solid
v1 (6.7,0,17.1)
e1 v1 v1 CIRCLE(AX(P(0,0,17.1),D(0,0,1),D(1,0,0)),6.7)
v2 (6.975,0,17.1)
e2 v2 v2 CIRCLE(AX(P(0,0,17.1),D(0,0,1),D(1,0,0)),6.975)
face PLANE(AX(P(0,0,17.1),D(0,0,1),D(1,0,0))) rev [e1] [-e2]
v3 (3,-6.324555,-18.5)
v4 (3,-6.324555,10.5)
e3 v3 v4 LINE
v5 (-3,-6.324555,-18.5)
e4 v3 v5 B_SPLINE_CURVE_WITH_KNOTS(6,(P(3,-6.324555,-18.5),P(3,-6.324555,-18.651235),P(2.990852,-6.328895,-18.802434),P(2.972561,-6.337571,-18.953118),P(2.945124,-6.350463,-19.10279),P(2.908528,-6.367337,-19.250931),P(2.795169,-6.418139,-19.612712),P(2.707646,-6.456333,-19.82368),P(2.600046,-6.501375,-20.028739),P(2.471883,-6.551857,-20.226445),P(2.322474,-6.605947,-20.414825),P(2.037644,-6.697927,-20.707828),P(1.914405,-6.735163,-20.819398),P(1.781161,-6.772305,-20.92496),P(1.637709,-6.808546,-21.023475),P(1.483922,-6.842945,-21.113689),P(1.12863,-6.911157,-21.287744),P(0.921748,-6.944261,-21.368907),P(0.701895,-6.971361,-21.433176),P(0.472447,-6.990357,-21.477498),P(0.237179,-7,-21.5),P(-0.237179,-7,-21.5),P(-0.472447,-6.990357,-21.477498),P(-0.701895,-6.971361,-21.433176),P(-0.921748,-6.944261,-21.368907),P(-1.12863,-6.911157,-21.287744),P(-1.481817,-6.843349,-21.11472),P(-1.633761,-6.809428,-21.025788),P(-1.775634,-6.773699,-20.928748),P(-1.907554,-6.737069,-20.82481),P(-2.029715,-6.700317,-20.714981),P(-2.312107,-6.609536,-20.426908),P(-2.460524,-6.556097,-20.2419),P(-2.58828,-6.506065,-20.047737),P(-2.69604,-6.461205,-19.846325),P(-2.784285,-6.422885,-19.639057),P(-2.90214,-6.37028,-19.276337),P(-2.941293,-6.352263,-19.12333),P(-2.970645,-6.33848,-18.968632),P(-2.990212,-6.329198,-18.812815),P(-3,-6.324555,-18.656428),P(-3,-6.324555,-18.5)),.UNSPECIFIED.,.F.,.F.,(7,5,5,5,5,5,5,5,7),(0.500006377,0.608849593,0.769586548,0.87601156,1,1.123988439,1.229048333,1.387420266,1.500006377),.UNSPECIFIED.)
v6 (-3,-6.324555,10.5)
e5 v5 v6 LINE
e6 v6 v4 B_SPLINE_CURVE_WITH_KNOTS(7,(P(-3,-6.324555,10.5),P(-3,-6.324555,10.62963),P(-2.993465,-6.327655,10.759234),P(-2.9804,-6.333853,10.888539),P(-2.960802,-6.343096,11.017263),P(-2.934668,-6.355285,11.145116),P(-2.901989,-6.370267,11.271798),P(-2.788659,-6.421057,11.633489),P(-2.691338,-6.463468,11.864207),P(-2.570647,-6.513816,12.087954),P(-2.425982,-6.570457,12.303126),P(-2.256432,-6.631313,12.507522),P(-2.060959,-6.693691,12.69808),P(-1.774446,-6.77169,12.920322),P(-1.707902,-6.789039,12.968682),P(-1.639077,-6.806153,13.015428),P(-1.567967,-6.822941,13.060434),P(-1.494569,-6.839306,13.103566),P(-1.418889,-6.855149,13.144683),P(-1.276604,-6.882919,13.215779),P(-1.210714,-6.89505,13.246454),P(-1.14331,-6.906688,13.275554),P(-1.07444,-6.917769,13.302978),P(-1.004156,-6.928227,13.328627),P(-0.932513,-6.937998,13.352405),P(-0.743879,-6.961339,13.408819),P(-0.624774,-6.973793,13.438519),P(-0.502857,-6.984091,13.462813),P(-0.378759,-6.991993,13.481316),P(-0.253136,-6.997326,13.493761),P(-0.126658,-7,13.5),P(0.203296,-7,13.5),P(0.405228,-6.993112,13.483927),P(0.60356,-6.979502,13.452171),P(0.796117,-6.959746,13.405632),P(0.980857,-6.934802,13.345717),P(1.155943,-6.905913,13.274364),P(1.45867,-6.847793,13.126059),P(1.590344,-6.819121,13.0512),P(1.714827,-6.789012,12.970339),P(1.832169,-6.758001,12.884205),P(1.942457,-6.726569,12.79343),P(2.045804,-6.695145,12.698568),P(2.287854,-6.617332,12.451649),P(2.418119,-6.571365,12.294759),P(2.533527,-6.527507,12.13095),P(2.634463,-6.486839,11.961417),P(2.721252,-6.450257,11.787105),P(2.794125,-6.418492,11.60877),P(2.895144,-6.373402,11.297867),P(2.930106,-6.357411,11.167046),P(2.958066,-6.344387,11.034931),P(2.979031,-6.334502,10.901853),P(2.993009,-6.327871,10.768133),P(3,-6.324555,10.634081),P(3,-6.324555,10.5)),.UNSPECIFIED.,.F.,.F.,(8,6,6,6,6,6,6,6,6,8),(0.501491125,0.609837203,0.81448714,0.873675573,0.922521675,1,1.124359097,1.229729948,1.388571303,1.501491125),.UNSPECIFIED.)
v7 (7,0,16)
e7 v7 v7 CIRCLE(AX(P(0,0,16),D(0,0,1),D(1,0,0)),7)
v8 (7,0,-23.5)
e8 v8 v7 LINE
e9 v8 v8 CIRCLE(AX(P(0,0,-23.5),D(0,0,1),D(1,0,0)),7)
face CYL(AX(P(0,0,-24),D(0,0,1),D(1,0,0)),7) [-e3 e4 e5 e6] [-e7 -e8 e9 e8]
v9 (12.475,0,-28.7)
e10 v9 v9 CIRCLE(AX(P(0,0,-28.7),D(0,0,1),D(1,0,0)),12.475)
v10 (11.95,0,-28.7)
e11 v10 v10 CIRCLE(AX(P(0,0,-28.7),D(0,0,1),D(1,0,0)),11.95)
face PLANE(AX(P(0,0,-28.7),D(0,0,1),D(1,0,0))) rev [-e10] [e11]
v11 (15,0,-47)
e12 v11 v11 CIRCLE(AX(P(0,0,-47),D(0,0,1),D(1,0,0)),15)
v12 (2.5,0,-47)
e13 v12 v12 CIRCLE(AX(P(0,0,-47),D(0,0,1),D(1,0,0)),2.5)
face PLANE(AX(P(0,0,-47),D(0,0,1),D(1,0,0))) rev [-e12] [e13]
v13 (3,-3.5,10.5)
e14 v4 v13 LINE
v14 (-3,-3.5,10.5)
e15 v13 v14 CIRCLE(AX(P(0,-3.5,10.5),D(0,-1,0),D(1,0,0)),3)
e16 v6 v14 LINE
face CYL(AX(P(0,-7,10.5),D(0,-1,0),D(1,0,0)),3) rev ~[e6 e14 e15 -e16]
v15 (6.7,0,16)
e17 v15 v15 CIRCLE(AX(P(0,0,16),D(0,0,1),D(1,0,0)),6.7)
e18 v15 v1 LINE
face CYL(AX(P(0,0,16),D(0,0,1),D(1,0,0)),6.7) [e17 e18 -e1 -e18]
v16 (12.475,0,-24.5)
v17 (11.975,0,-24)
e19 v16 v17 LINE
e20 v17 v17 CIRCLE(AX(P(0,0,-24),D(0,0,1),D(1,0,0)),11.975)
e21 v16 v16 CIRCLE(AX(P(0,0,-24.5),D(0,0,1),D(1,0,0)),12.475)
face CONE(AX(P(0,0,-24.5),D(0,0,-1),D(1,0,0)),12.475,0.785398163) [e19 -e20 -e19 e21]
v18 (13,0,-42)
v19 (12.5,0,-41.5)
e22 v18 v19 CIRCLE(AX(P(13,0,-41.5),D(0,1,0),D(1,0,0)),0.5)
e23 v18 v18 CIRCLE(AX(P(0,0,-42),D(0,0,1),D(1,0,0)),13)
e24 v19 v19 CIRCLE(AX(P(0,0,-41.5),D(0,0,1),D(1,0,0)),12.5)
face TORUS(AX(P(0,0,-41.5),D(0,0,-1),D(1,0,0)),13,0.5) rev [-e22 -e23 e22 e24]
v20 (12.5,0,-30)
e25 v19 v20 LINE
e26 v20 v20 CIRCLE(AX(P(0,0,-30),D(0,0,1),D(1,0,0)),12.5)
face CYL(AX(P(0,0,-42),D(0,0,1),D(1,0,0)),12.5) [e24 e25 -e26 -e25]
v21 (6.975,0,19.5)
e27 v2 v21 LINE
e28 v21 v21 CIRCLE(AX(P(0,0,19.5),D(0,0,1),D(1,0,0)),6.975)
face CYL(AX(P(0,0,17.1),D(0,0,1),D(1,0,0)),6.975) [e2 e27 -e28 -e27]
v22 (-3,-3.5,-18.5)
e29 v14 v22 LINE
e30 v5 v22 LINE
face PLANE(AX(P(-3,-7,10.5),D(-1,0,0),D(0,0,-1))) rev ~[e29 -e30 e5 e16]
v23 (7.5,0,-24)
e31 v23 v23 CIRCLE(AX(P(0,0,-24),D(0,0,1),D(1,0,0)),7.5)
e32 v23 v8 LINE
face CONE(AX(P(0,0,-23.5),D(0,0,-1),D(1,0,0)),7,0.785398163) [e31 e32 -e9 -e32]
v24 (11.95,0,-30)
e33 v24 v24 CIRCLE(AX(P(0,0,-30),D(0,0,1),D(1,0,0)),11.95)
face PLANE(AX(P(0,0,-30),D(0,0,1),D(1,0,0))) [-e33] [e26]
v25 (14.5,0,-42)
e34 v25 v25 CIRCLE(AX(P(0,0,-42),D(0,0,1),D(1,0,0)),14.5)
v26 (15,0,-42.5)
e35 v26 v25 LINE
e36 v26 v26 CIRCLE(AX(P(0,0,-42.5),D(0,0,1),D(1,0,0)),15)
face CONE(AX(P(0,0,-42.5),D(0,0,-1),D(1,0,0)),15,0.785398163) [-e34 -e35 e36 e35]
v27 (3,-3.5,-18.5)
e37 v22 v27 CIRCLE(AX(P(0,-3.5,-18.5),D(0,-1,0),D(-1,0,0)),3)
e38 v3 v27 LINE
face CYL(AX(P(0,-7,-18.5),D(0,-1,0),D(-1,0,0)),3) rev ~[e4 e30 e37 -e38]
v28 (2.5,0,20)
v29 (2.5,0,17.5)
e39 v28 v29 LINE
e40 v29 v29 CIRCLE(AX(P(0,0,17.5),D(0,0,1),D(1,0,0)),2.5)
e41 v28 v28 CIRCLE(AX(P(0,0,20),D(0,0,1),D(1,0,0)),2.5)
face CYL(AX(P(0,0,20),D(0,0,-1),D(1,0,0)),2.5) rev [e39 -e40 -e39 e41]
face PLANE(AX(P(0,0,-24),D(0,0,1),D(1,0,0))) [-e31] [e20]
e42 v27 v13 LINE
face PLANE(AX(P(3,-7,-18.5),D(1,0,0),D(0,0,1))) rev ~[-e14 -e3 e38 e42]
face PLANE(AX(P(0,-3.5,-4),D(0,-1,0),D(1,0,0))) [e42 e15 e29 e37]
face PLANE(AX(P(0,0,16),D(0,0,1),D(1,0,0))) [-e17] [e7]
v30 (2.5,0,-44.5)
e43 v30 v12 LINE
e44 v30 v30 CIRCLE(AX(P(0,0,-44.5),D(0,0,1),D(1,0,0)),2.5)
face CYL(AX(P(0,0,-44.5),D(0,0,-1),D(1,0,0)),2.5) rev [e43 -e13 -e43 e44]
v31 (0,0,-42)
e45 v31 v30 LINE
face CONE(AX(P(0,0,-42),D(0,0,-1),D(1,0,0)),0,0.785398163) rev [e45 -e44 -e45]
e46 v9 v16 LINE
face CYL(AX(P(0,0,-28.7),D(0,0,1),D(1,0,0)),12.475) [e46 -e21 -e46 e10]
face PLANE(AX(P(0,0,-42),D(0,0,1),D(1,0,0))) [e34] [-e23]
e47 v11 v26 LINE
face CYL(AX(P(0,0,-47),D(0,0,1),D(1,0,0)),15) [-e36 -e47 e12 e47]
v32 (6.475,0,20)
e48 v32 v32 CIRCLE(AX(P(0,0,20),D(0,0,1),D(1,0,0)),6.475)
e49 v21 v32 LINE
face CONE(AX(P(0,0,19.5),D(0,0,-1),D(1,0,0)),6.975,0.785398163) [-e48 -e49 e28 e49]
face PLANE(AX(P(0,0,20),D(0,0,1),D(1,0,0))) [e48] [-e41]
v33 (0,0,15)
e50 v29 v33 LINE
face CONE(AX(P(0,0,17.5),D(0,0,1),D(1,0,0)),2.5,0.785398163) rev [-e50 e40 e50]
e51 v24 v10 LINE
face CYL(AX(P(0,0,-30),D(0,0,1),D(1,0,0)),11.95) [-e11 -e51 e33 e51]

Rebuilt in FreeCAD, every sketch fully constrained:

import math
import FreeCAD as App
import Part
import Sketcher

V = App.Vector
Q = App.Units.Quantity


def edges_at(feature, points):
    """Names of the edges that pass closest to the given points."""
    edges = feature.Shape.Edges
    near = lambda p: min(range(len(edges)), key=lambda i: edges[i].distToShape(Part.Vertex(*p))[0])
    return sorted({f"Edge{near(p) + 1}" for p in points})


def add_polygon(sketch, points):
    """Adds a closed chain of lines whose ends are joined by coincident constraints."""
    first, n = sketch.GeometryCount, len(points)
    for a, b in zip(points, points[1:] + points[:1]):
        sketch.addGeometry(Part.LineSegment(App.Vector(*a, 0), App.Vector(*b, 0)), False)
    for i in range(n):
        sketch.addConstraint(Sketcher.Constraint("Coincident", first + i, 2, first + (i + 1) % n, 1))

doc = App.newDocument("Part")
body = doc.addObject("PartDesign::Body", "Body")

# Sketch on XZ plane
sketch1 = doc.addObject("Sketcher::SketchObject", "Sketch")
body.addObject(sketch1)
sketch1.AttachmentSupport = (doc.XZ_Plane, [""])
sketch1.MapMode = "FlatFace"
add_polygon(sketch1, [(0, 15), (0, -42), (2.5, -44.5), (2.5, -47), (15, -47), (15, -42), (12.5, -42), (12.5, -30), (11.95, -30), (11.95, -28.7), (12.47, -28.7), (12.47, -24), (7, -24), (7, 16), (6.7, 16), (6.7, 17.1), (6.97, 17.1), (6.97, 20), (2.5, 20), (2.5, 17.5)])  # lines 0-19
sketch1.addConstraint([
    Sketcher.Constraint("Vertical", 0),
    Sketcher.Constraint("Vertical", 2),
    Sketcher.Constraint("Horizontal", 3),
    Sketcher.Constraint("Vertical", 4),
    Sketcher.Constraint("Horizontal", 5),
    Sketcher.Constraint("Vertical", 6),
    Sketcher.Constraint("Horizontal", 7),
    Sketcher.Constraint("Vertical", 8),
    Sketcher.Constraint("Horizontal", 9),
    Sketcher.Constraint("Vertical", 10),
    Sketcher.Constraint("Horizontal", 11),
    Sketcher.Constraint("Vertical", 12),
    Sketcher.Constraint("Horizontal", 13),
    Sketcher.Constraint("Vertical", 14),
    Sketcher.Constraint("Horizontal", 15),
    Sketcher.Constraint("Vertical", 16),
    Sketcher.Constraint("Horizontal", 17),
    Sketcher.Constraint("Vertical", 18),
    Sketcher.Constraint("PointOnObject", 0, 2, -2),
    Sketcher.Constraint("Perpendicular", 1, 19),
    Sketcher.Constraint("Horizontal", 0, 2, 4, 2),
    Sketcher.Constraint("Vertical", 2, 2, 17, 2),
    Sketcher.Constraint("Equal", 5, 2),
    Sketcher.Constraint("Equal", 2, 18),
    Sketcher.Constraint("Equal", 1, 19),
    Sketcher.Constraint("DistanceY", 0, 2, 0, 1, Q("57 mm")),
    Sketcher.Constraint("DistanceY", 4, 1, 4, 2, Q("5 mm")),
    Sketcher.Constraint("DistanceY", 6, 1, 6, 2, Q("12 mm")),
    Sketcher.Constraint("DistanceY", 12, 1, 12, 2, Q("40 mm")),
    Sketcher.Constraint("DistanceX", 3, 1, 3, 2, Q("12.5 mm")),
    Sketcher.Constraint("DistanceX", 5, 2, 5, 1, Q("2.5 mm")),
    Sketcher.Constraint("DistanceX", 13, 2, 13, 1, Q("0.3 mm")),
    Sketcher.Constraint("DistanceY", 8, 1, 8, 2, Q("1.3 mm")),
    Sketcher.Constraint("DistanceY", 10, 1, 10, 2, Q("4.7 mm")),
    Sketcher.Constraint("DistanceY", 14, 1, 14, 2, Q("1.1 mm")),
    Sketcher.Constraint("DistanceY", 0, 2, -1, 1, Q("42 mm")),
    Sketcher.Constraint("DistanceX", -1, 1, 11, 2, Q("7 mm")),
    Sketcher.Constraint("DistanceX", 7, 2, 7, 1, Q("0.55 mm")),
    Sketcher.Constraint("DistanceX", 15, 2, 10, 2, Q("5.5 mm")),
    Sketcher.Constraint("DistanceX", 9, 1, 9, 2, Q("0.525 mm")),
])
revolution = doc.addObject("PartDesign::Revolution", "Revolution")
body.addObject(revolution)
revolution.Profile = sketch1
revolution.ReferenceAxis = (sketch1, ["V_Axis"])
revolution.Angle = 360
doc.recompute()

chamfer = doc.addObject("PartDesign::Chamfer", "Chamfer")
body.addObject(chamfer)
chamfer.Base = (revolution, edges_at(revolution, [
    (-6.975, 0, 20),
    (-12.475, 0, -24),
    (-7, 0, -24),
    (-15, 0, -42),
]))
chamfer.Size = 0.5
doc.recompute()

fillet = doc.addObject("PartDesign::Fillet", "Fillet")
body.addObject(fillet)
fillet.Base = (chamfer, edges_at(chamfer, [(-12.5, 0, -42)]))
fillet.Radius = 0.5

# Sketch on XZ plane
sketch2 = doc.addObject("Sketcher::SketchObject", "Sketch001")
body.addObject(sketch2)
sketch2.AttachmentSupport = (doc.XZ_Plane, [""])
sketch2.MapMode = "FlatFace"
sketch2.AttachmentOffset = App.Placement(V(0, 0, 7), App.Rotation())
sketch2.addGeometry([
    Part.LineSegment(V(3, -18.5, 0), V(3, 10.5, 0)),
    Part.ArcOfCircle(Part.Circle(V(0, 10.5, 0), V(0, 0, 1), 3), math.radians(0), math.radians(180)),
    Part.LineSegment(V(-3, 10.5, 0), V(-3, -18.5, 0)),
    Part.ArcOfCircle(Part.Circle(V(0, -18.5, 0), V(0, 0, 1), 3), math.radians(180), math.radians(360)),
], False)
sketch2.addConstraint([
    Sketcher.Constraint("Tangent", 0, 2, 1, 1),
    Sketcher.Constraint("Tangent", 1, 2, 2, 1),
    Sketcher.Constraint("Tangent", 2, 2, 3, 1),
    Sketcher.Constraint("Tangent", 3, 2, 0, 1),
    Sketcher.Constraint("Vertical", 0),
    Sketcher.Constraint("Vertical", 2),
    Sketcher.Constraint("PointOnObject", 1, 3, -2),
    Sketcher.Constraint("Radius", 1, Q("3 mm")),
    Sketcher.Constraint("DistanceY", 0, 1, 0, 2, Q("29 mm")),
    Sketcher.Constraint("DistanceY", -1, 1, 1, 3, Q("10.5 mm")),
])
pocket1 = doc.addObject("PartDesign::Pocket", "Pocket")
body.addObject(pocket1)
pocket1.Profile = sketch2
pocket1.Length = 3.5

doc.recompute()
